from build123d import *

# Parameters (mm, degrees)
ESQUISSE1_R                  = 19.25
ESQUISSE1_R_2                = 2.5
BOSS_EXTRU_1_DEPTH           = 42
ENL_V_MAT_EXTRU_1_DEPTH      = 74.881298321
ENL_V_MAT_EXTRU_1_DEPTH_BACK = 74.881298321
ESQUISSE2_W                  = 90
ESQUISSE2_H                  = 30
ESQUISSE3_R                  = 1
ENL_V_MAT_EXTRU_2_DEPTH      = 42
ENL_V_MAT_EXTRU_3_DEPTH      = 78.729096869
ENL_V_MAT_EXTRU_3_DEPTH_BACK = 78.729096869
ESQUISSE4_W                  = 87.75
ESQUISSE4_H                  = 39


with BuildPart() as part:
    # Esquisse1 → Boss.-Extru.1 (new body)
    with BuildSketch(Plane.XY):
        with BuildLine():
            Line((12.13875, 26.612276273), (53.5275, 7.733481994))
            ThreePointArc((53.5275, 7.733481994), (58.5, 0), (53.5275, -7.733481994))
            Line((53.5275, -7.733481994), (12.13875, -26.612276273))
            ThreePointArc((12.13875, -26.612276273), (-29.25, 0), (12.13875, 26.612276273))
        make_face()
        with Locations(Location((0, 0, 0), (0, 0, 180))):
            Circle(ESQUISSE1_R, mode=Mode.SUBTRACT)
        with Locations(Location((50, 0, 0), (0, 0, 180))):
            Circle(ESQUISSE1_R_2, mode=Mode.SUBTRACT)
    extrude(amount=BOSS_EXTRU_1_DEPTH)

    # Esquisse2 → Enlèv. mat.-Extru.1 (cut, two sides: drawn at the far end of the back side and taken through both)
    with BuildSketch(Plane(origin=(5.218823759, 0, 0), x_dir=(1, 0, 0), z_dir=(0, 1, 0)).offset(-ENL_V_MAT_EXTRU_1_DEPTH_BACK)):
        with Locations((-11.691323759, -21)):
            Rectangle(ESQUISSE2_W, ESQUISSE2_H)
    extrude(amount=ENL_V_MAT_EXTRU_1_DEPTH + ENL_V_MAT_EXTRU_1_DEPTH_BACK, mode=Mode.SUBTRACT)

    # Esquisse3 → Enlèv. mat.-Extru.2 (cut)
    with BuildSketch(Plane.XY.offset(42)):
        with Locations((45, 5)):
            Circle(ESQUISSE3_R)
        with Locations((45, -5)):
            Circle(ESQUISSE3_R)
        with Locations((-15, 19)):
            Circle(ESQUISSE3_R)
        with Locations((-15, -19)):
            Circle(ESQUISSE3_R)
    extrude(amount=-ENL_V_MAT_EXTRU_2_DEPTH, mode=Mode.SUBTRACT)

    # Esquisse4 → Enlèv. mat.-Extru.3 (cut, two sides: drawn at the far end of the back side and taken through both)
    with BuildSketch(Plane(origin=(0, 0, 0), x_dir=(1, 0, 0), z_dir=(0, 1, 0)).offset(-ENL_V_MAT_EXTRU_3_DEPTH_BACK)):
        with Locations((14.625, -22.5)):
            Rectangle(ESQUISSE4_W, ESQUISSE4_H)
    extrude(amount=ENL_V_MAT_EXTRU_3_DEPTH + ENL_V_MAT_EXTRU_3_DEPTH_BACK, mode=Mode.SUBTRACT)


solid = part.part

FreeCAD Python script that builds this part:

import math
import FreeCAD as App
import Part
import Sketcher
Q = App.Units.Quantity


def add_polygon(sketch, points):
    """Adds a closed chain of lines whose ends are joined by coincident constraints."""
    first, n = sketch.GeometryCount, len(points)
    for a, b in zip(points, points[1:] + points[:1]):
        sketch.addGeometry(Part.LineSegment(App.Vector(*a, 0), App.Vector(*b, 0)), False)
    for i in range(n):
        sketch.addConstraint(Sketcher.Constraint("Coincident", first + i, 2, first + (i + 1) % n, 1))

doc = App.newDocument("Part")
body = doc.addObject("PartDesign::Body", "Body")

# Sketch on XY plane
sketch1 = doc.addObject("Sketcher::SketchObject", "Sketch")
body.addObject(sketch1)
sketch1.AttachmentSupport = (doc.XY_Plane, [""])
sketch1.MapMode = "FlatFace"
sketch1.addGeometry(Part.LineSegment(App.Vector(53.5, 7.7, 0), App.Vector(12.1, 26.6, 0)), False)
sketch1.addGeometry(Part.ArcOfCircle(Part.Circle(App.Vector(0, 0, 0), App.Vector(0, 0, 1), 29.2), math.radians(65), math.radians(295)), False)
sketch1.addGeometry(Part.LineSegment(App.Vector(12.1, -26.6, 0), App.Vector(53.5, -7.7, 0)), False)
sketch1.addGeometry(Part.ArcOfCircle(Part.Circle(App.Vector(50, 0, 0), App.Vector(0, 0, 1), 8.5), math.radians(-65), math.radians(65)), False)
sketch1.addGeometry(Part.Circle(App.Vector(50, 0, 0), App.Vector(0, 0, 1), 2.5), False)
sketch1.addGeometry(Part.Circle(App.Vector(0, 0, 0), App.Vector(0, 0, 1), 19.2), False)
sketch1.addConstraint(Sketcher.Constraint("Tangent", 0, 2, 1, 1))
sketch1.addConstraint(Sketcher.Constraint("Tangent", 1, 2, 2, 1))
sketch1.addConstraint(Sketcher.Constraint("Tangent", 2, 2, 3, 1))
sketch1.addConstraint(Sketcher.Constraint("Tangent", 3, 2, 0, 1))
sketch1.addConstraint(Sketcher.Constraint("Coincident", 1, 3, -1, 1))
sketch1.addConstraint(Sketcher.Constraint("Coincident", 5, 3, -1, 1))
sketch1.addConstraint(Sketcher.Constraint("Coincident", 4, 3, 3, 3))
sketch1.addConstraint(Sketcher.Constraint("PointOnObject", 3, 3, -1))
sketch1.addConstraint(Sketcher.Constraint("Diameter", 4, Q("5 mm")))
sketch1.addConstraint(Sketcher.Constraint("Diameter", 5, Q("38.5 mm")))
sketch1.addConstraint(Sketcher.Constraint("Radius", 3, Q("8.5 mm")))
sketch1.addConstraint(Sketcher.Constraint("Radius", 1, Q("29.25 mm")))
sketch1.addConstraint(Sketcher.Constraint("DistanceX", -1, 1, 3, 3, Q("50 mm")))
pad1 = doc.addObject("PartDesign::Pad", "Pad")
body.addObject(pad1)
pad1.Profile = sketch1
pad1.Length = 42

# Sketch on XZ plane
sketch2 = doc.addObject("Sketcher::SketchObject", "Sketch001")
body.addObject(sketch2)
sketch2.AttachmentSupport = (doc.XZ_Plane, [""])
sketch2.MapMode = "FlatFace"
add_polygon(sketch2, [(-51, 6), (-51, 36), (39, 36), (39, 6)])  # lines 0-3
sketch2.addConstraint(Sketcher.Constraint("Vertical", 0))
sketch2.addConstraint(Sketcher.Constraint("Horizontal", 1))
sketch2.addConstraint(Sketcher.Constraint("Vertical", 2))
sketch2.addConstraint(Sketcher.Constraint("Horizontal", 3))
sketch2.addConstraint(Sketcher.Constraint("DistanceX", 1, 1, 1, 2, Q("90 mm")))
sketch2.addConstraint(Sketcher.Constraint("DistanceY", 0, 1, 0, 2, Q("30 mm")))
sketch2.addConstraint(Sketcher.Constraint("DistanceY", -1, 1, 0, 2, Q("36 mm")))
sketch2.addConstraint(Sketcher.Constraint("DistanceX", 0, 2, -1, 1, Q("51.4725 mm")))
pocket1 = doc.addObject("PartDesign::Pocket", "Pocket")
body.addObject(pocket1)
pocket1.Profile = sketch2
pocket1.Type = "ThroughAll"
pocket1.Midplane = True

# Sketch on XY plane
sketch3 = doc.addObject("Sketcher::SketchObject", "Sketch002")
body.addObject(sketch3)
sketch3.AttachmentSupport = (doc.XY_Plane, [""])
sketch3.MapMode = "FlatFace"
sketch3.AttachmentOffset = App.Placement(App.Vector(0, 0, 42), App.Rotation())
sketch3.addGeometry(Part.Circle(App.Vector(45, 5, 0), App.Vector(0, 0, 1), 1), False)
sketch3.addGeometry(Part.Circle(App.Vector(45, -5, 0), App.Vector(0, 0, 1), 1), False)
sketch3.addGeometry(Part.Circle(App.Vector(-15, 19, 0), App.Vector(0, 0, 1), 1), False)
sketch3.addGeometry(Part.Circle(App.Vector(-15, -19, 0), App.Vector(0, 0, 1), 1), False)
sketch3.addConstraint(Sketcher.Constraint("Equal", 0, 1))
sketch3.addConstraint(Sketcher.Constraint("Equal", 1, 2))
sketch3.addConstraint(Sketcher.Constraint("Equal", 2, 3))
sketch3.addConstraint(Sketcher.Constraint("Symmetric", 0, 3, 1, 3, -1))
sketch3.addConstraint(Sketcher.Constraint("Symmetric", 2, 3, 3, 3, -1))
sketch3.addConstraint(Sketcher.Constraint("Diameter", 0, Q("2 mm")))
sketch3.addConstraint(Sketcher.Constraint("DistanceX", -1, 1, 0, 3, Q("45 mm")))
sketch3.addConstraint(Sketcher.Constraint("DistanceY", -1, 1, 0, 3, Q("5 mm")))
sketch3.addConstraint(Sketcher.Constraint("DistanceX", 2, 3, -1, 1, Q("15 mm")))
sketch3.addConstraint(Sketcher.Constraint("DistanceY", -1, 1, 2, 3, Q("19 mm")))
pocket2 = doc.addObject("PartDesign::Pocket", "Pocket001")
body.addObject(pocket2)
pocket2.Profile = sketch3
pocket2.Length = 42

# Sketch on XZ plane
sketch4 = doc.addObject("Sketcher::SketchObject", "Sketch003")
body.addObject(sketch4)
sketch4.AttachmentSupport = (doc.XZ_Plane, [""])
sketch4.MapMode = "FlatFace"
add_polygon(sketch4, [(-29, 3), (-29, 42), (58, 42), (58, 3)])  # lines 0-3
sketch4.addConstraint(Sketcher.Constraint("Vertical", 0))
sketch4.addConstraint(Sketcher.Constraint("Horizontal", 1))
sketch4.addConstraint(Sketcher.Constraint("Vertical", 2))
sketch4.addConstraint(Sketcher.Constraint("Horizontal", 3))
sketch4.addConstraint(Sketcher.Constraint("DistanceY", 0, 1, 0, 2, Q("39 mm")))
sketch4.addConstraint(Sketcher.Constraint("DistanceY", -1, 1, 0, 2, Q("42 mm")))
sketch4.addConstraint(Sketcher.Constraint("DistanceX", 1, 1, 1, 2, Q("87.75 mm")))
sketch4.addConstraint(Sketcher.Constraint("DistanceX", -1, 1, 1, 2, Q("58.5 mm")))
pocket3 = doc.addObject("PartDesign::Pocket", "Pocket002")
body.addObject(pocket3)
pocket3.Profile = sketch4
pocket3.Type = "ThroughAll"
pocket3.Midplane = True

doc.recompute()
